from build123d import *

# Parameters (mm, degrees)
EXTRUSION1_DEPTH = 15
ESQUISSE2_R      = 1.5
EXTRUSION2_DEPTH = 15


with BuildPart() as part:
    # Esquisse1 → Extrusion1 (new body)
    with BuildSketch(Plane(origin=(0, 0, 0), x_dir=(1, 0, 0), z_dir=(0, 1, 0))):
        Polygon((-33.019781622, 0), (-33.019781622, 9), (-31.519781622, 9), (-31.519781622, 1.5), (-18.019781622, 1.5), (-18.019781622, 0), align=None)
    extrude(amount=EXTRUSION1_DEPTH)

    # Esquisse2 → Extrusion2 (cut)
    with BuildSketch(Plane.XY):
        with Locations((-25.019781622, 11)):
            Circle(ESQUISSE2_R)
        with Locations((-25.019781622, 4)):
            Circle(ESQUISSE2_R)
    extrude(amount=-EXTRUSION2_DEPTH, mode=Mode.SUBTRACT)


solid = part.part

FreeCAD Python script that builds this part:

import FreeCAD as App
import Part
import Sketcher

V = App.Vector

doc = App.newDocument("Part")
body = doc.addObject("PartDesign::Body", "Body")

sketch1 = body.newObject("Sketcher::SketchObject", "Sketch")
sketch1.AttachmentSupport = (doc.getObject("XZ_Plane"), [""])
sketch1.MapMode = "FlatFace"
sketch1.addGeometry([
    Part.LineSegment(V(-33, -9, 0), V(-33, 0, 0)),
    Part.LineSegment(V(-33, 0, 0), V(-18, 0, 0)),
    Part.LineSegment(V(-18, 0, 0), V(-18, -1.5, 0)),
    Part.LineSegment(V(-18, -1.5, 0), V(-31.5, -1.5, 0)),
    Part.LineSegment(V(-31.5, -1.5, 0), V(-31.5, -9, 0)),
    Part.LineSegment(V(-31.5, -9, 0), V(-33, -9, 0)),
], False)
sketch1.addConstraint([
    Sketcher.Constraint("Coincident", 0, 2, 1, 1),
    Sketcher.Constraint("Coincident", 1, 2, 2, 1),
    Sketcher.Constraint("Coincident", 2, 2, 3, 1),
    Sketcher.Constraint("Coincident", 3, 2, 4, 1),
    Sketcher.Constraint("Coincident", 4, 2, 5, 1),
    Sketcher.Constraint("Coincident", 5, 2, 0, 1),
    Sketcher.Constraint("Vertical", 0),
    Sketcher.Constraint("Horizontal", 1),
    Sketcher.Constraint("Vertical", 2),
    Sketcher.Constraint("Horizontal", 3),
    Sketcher.Constraint("Vertical", 4),
    Sketcher.Constraint("Horizontal", 5),
    Sketcher.Constraint("PointOnObject", 0, 2, -1),
    Sketcher.Constraint("Equal", 5, 2),
    Sketcher.Constraint("DistanceX", 1, 1, 1, 2, 15.0),
    Sketcher.Constraint("DistanceY", 0, 1, 0, 2, 9.0),
    Sketcher.Constraint("DistanceX", 3, 2, 3, 1, 13.5),
    Sketcher.Constraint("DistanceX", 0, 2, -1, 1, 33.019782),
])
pad1 = body.newObject("PartDesign::Pad", "Pad")
pad1.Profile = sketch1
pad1.Length = 15
pad1.Reversed = True

sketch2 = body.newObject("Sketcher::SketchObject", "Sketch001")
sketch2.AttachmentSupport = (doc.getObject("XY_Plane"), [""])
sketch2.MapMode = "FlatFace"
sketch2.addGeometry([
    Part.Circle(V(-25, 11, 0), V(0, 0, 1), 1.5),
    Part.Circle(V(-25, 4, 0), V(0, 0, 1), 1.5),
], False)
sketch2.addConstraint([
    Sketcher.Constraint("Equal", 0, 1),
    Sketcher.Constraint("Vertical", 0, 3, 1, 3),
    Sketcher.Constraint("Diameter", 0, 3.0),
    Sketcher.Constraint("DistanceY", -1, 1, 0, 3, 11.0),
    Sketcher.Constraint("DistanceY", -1, 1, 1, 3, 4.0),
    Sketcher.Constraint("DistanceX", 0, 3, -1, 1, 25.019782),
])
pocket1 = body.newObject("PartDesign::Pocket", "Pocket")
pocket1.Profile = sketch2
pocket1.Length = 15

doc.recompute()
